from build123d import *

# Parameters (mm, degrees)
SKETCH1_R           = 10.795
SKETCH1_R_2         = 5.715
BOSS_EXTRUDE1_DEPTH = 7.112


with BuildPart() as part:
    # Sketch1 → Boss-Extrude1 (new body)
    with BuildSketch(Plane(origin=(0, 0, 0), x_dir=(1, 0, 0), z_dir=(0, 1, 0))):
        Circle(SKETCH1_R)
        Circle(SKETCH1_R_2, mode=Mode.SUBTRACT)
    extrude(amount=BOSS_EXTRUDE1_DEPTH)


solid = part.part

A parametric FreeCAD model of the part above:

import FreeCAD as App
import Part
import Sketcher

V = App.Vector
Q = App.Units.Quantity

doc = App.newDocument("Part")
body = doc.addObject("PartDesign::Body", "Body")

# Sketch on XZ plane
sketch1 = body.newObject("Sketcher::SketchObject", "Sketch")
sketch1.AttachmentSupport = (doc.getObject("XZ_Plane"), [""])
sketch1.MapMode = "FlatFace"
sketch1.addGeometry([
    Part.Circle(V(0, 0, 0), V(0, 0, 1), 11),
    Part.Circle(V(0, 0, 0), V(0, 0, 1), 6),
], False)
sketch1.addConstraint([
    Sketcher.Constraint("Coincident", 0, 3, -1, 1),
    Sketcher.Constraint("Coincident", 1, 3, -1, 1),
    Sketcher.Constraint("Diameter", 0, Q("0.85 in")),
    Sketcher.Constraint("Diameter", 1, Q("0.45 in")),
])
pad1 = body.newObject("PartDesign::Pad", "Pad")
pad1.Profile = sketch1
pad1.Length = Q("0.28 in")
pad1.Reversed = True

doc.recompute()
